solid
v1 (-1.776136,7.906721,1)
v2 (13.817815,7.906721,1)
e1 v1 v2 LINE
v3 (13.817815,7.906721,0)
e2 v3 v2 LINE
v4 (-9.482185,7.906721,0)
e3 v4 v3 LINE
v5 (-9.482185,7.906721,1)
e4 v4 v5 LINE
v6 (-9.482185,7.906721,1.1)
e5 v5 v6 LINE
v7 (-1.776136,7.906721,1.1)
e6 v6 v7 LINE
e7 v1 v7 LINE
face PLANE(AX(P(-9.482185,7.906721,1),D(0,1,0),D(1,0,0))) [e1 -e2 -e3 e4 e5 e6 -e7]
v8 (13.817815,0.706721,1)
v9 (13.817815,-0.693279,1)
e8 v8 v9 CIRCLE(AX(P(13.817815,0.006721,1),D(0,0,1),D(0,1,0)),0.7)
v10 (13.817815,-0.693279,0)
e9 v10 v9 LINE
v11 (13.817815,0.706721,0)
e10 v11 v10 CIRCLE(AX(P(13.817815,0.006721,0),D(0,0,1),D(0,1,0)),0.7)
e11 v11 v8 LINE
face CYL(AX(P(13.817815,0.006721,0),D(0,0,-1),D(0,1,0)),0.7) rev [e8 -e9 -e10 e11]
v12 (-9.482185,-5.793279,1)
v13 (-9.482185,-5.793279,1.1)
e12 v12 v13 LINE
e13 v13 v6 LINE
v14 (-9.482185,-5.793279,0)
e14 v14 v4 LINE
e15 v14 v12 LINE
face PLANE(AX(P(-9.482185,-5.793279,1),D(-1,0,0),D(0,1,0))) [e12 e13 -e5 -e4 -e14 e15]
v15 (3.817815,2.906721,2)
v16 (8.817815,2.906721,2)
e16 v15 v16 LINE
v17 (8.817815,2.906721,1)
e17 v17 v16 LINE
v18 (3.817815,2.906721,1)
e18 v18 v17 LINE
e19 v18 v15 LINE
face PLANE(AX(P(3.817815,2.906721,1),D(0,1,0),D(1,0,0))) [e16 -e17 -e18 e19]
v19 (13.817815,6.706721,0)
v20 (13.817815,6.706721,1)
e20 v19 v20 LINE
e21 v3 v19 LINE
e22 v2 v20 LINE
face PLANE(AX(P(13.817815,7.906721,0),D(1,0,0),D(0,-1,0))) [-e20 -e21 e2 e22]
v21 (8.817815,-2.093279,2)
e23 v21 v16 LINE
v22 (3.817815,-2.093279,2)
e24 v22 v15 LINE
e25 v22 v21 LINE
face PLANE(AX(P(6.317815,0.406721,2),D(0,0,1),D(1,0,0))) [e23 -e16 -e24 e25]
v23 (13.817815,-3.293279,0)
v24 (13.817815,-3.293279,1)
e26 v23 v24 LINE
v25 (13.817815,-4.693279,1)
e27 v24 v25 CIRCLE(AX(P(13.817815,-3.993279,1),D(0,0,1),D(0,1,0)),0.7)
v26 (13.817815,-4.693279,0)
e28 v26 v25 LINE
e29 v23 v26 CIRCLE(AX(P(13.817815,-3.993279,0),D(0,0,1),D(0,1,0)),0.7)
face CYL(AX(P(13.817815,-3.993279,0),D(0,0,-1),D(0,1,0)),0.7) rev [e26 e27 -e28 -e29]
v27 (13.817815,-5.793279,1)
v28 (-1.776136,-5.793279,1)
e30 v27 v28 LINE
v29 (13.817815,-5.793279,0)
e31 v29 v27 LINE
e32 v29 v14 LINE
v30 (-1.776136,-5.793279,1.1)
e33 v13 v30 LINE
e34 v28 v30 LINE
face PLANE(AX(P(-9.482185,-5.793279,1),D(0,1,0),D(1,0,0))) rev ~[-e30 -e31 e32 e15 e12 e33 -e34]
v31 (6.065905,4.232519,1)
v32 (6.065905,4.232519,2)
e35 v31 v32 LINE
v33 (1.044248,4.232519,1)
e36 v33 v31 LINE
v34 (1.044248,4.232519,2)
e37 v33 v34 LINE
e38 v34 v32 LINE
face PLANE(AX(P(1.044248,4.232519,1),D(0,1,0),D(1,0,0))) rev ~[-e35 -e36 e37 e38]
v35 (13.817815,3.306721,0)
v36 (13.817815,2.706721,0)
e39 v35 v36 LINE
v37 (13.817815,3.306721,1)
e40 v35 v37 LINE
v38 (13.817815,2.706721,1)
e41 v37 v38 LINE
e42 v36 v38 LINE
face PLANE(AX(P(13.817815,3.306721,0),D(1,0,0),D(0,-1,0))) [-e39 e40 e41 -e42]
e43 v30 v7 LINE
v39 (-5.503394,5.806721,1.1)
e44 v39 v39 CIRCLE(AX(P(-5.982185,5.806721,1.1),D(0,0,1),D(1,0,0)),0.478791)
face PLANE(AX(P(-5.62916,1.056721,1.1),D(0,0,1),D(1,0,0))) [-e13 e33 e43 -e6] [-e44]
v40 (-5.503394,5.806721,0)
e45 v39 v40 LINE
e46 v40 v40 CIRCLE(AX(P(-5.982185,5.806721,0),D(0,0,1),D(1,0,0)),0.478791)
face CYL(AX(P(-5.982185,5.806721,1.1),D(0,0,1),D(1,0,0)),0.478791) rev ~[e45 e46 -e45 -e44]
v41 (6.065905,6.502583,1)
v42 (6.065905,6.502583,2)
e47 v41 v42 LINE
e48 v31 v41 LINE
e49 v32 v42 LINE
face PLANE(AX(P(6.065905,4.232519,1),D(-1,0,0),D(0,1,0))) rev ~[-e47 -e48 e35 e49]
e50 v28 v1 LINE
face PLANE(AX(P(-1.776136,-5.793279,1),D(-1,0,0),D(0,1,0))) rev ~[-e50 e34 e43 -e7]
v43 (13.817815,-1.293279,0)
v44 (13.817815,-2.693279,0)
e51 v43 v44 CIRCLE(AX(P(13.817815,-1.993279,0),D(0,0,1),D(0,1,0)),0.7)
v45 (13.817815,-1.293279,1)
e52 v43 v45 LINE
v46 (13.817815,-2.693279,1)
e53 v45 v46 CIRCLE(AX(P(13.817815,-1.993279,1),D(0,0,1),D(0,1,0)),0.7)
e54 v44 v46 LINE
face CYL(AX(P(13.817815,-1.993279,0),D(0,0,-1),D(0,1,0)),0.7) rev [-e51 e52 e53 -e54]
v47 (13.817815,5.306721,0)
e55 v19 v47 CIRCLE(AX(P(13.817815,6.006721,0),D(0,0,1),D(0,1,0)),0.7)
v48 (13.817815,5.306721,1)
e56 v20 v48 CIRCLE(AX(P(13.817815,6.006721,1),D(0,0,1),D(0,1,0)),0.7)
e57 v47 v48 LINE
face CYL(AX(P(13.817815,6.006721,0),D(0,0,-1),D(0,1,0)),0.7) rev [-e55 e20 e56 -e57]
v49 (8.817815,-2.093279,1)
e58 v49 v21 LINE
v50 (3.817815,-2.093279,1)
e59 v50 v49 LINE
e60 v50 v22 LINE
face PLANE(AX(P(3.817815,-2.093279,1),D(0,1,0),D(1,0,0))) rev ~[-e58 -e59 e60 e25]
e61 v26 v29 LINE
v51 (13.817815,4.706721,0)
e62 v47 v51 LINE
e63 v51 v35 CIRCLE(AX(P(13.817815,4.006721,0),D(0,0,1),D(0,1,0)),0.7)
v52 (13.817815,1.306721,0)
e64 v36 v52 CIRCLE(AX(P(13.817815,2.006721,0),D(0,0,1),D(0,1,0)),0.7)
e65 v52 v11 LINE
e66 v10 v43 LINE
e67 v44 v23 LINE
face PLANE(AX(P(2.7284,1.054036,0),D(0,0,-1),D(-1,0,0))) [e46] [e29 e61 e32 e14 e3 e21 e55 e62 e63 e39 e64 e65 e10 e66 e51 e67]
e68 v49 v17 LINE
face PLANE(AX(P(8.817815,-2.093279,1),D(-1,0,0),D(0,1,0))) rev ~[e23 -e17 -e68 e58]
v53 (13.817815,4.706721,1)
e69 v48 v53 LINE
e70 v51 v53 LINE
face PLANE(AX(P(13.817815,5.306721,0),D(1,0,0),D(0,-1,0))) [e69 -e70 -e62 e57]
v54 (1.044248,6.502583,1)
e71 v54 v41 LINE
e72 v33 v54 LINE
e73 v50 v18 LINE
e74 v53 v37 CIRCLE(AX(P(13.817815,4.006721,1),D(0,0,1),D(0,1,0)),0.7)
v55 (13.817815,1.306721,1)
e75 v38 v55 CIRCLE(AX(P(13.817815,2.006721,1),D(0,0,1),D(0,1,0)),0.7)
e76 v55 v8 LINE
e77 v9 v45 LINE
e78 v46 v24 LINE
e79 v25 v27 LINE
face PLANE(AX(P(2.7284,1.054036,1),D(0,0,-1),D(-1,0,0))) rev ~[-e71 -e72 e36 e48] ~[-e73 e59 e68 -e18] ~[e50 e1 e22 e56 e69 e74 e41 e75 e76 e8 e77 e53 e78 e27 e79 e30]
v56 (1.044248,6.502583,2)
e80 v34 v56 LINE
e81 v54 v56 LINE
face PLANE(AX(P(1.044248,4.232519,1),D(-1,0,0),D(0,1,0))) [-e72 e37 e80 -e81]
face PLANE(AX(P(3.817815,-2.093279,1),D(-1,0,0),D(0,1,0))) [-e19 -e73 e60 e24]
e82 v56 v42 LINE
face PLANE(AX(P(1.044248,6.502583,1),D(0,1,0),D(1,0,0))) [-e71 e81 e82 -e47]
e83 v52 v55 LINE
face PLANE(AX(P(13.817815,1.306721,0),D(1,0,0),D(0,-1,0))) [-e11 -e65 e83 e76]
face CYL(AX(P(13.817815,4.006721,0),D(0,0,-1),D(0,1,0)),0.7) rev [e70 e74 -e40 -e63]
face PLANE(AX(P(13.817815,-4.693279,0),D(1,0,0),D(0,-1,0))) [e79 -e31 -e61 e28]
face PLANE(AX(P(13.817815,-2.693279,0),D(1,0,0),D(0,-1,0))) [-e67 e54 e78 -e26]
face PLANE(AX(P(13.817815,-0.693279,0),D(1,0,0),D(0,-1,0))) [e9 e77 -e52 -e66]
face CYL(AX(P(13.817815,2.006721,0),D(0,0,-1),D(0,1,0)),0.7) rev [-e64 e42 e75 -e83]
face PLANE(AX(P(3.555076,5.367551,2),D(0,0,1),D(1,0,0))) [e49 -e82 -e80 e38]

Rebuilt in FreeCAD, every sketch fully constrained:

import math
import FreeCAD as App
import Part
import Sketcher

V = App.Vector


def add_polygon(sketch, points):
    """Adds a closed chain of lines whose ends are joined by coincident constraints."""
    first, n = sketch.GeometryCount, len(points)
    for a, b in zip(points, points[1:] + points[:1]):
        sketch.addGeometry(Part.LineSegment(App.Vector(*a, 0), App.Vector(*b, 0)), False)
    for i in range(n):
        sketch.addConstraint(Sketcher.Constraint("Coincident", first + i, 2, first + (i + 1) % n, 1))

doc = App.newDocument("Part")
body = doc.addObject("PartDesign::Body", "Body")

sketch1 = body.newObject("Sketcher::SketchObject", "Sketch")
sketch1.AttachmentSupport = (doc.getObject("XY_Plane"), [""])
sketch1.MapMode = "FlatFace"
sketch1.addGeometry([
    Part.LineSegment(V(13.8, 4.7, 0), V(13.8, 5.3, 0)),
    Part.ArcOfCircle(Part.Circle(V(13.8, 6, 0), V(0, 0, 1), 0.7), math.radians(90), math.radians(270)),
    Part.LineSegment(V(13.8, 6.7, 0), V(13.8, 7.9, 0)),
    Part.LineSegment(V(13.8, 7.9, 0), V(-9.5, 7.9, 0)),
    Part.LineSegment(V(-9.5, 7.9, 0), V(-9.5, -5.8, 0)),
    Part.LineSegment(V(-9.5, -5.8, 0), V(13.8, -5.8, 0)),
    Part.LineSegment(V(13.8, -5.8, 0), V(13.8, -4.7, 0)),
    Part.ArcOfCircle(Part.Circle(V(13.8, -4, 0), V(0, 0, 1), 0.7), math.radians(90), math.radians(270)),
    Part.LineSegment(V(13.8, -3.3, 0), V(13.8, -2.7, 0)),
    Part.ArcOfCircle(Part.Circle(V(13.8, -2, 0), V(0, 0, 1), 0.7), math.radians(90), math.radians(270)),
    Part.LineSegment(V(13.8, -1.3, 0), V(13.8, -0.7, 0)),
    Part.ArcOfCircle(Part.Circle(V(13.8, 0, 0), V(0, 0, 1), 0.7), math.radians(90), math.radians(270)),
    Part.LineSegment(V(13.8, 0.7, 0), V(13.8, 1.3, 0)),
    Part.ArcOfCircle(Part.Circle(V(13.8, 2, 0), V(0, 0, 1), 0.7), math.radians(90), math.radians(270)),
    Part.LineSegment(V(13.8, 2.7, 0), V(13.8, 3.3, 0)),
    Part.ArcOfCircle(Part.Circle(V(13.8, 4, 0), V(0, 0, 1), 0.7), math.radians(90), math.radians(270)),
], False)
sketch1.addConstraint([
    Sketcher.Constraint("Coincident", 0, 2, 1, 2),
    Sketcher.Constraint("Coincident", 1, 1, 2, 1),
    Sketcher.Constraint("Coincident", 2, 2, 3, 1),
    Sketcher.Constraint("Coincident", 3, 2, 4, 1),
    Sketcher.Constraint("Coincident", 4, 2, 5, 1),
    Sketcher.Constraint("Coincident", 5, 2, 6, 1),
    Sketcher.Constraint("Coincident", 6, 2, 7, 2),
    Sketcher.Constraint("Coincident", 7, 1, 8, 1),
    Sketcher.Constraint("Coincident", 8, 2, 9, 2),
    Sketcher.Constraint("Coincident", 9, 1, 10, 1),
    Sketcher.Constraint("Coincident", 10, 2, 11, 2),
    Sketcher.Constraint("Coincident", 11, 1, 12, 1),
    Sketcher.Constraint("Coincident", 12, 2, 13, 2),
    Sketcher.Constraint("Coincident", 13, 1, 14, 1),
    Sketcher.Constraint("Coincident", 14, 2, 15, 2),
    Sketcher.Constraint("Coincident", 15, 1, 0, 1),
    Sketcher.Constraint("Vertical", 0),
    Sketcher.Constraint("Vertical", 2),
    Sketcher.Constraint("Horizontal", 3),
    Sketcher.Constraint("Vertical", 4),
    Sketcher.Constraint("Horizontal", 5),
    Sketcher.Constraint("Vertical", 6),
    Sketcher.Constraint("Vertical", 8),
    Sketcher.Constraint("Vertical", 10),
    Sketcher.Constraint("Vertical", 12),
    Sketcher.Constraint("Vertical", 14),
    Sketcher.Constraint("Equal", 1, 7),
    Sketcher.Constraint("Equal", 7, 9),
    Sketcher.Constraint("Equal", 9, 11),
    Sketcher.Constraint("Equal", 11, 13),
    Sketcher.Constraint("Equal", 13, 15),
    Sketcher.Constraint("Vertical", 1, 3, 7, 3),
    Sketcher.Constraint("Vertical", 7, 3, 9, 3),
    Sketcher.Constraint("Vertical", 9, 3, 11, 3),
    Sketcher.Constraint("Vertical", 11, 3, 13, 3),
    Sketcher.Constraint("Vertical", 13, 3, 15, 3),
    Sketcher.Constraint("Vertical", 15, 3, 0, 2),
    Sketcher.Constraint("Vertical", 0, 2, 1, 1),
    Sketcher.Constraint("Vertical", 2, 2, 5, 2),
    Sketcher.Constraint("Vertical", 6, 2, 7, 1),
    Sketcher.Constraint("Vertical", 8, 2, 9, 1),
    Sketcher.Constraint("Vertical", 10, 2, 11, 1),
    Sketcher.Constraint("Vertical", 12, 2, 13, 1),
    Sketcher.Constraint("Equal", 0, 8),
    Sketcher.Constraint("Equal", 8, 10),
    Sketcher.Constraint("Equal", 10, 12),
    Sketcher.Constraint("Equal", 12, 14),
    Sketcher.Constraint("Radius", 1, 0.7),
    Sketcher.Constraint("DistanceX", 3, 2, 3, 1, 23.3),
    Sketcher.Constraint("DistanceY", 0, 1, 0, 2, 0.6),
    Sketcher.Constraint("DistanceY", 2, 1, 2, 2, 1.2),
    Sketcher.Constraint("DistanceY", 4, 2, 4, 1, 13.7),
    Sketcher.Constraint("DistanceY", -1, 1, 1, 3, 6.006721),
    Sketcher.Constraint("DistanceX", -1, 1, 1, 3, 13.817815),
])
pad1 = body.newObject("PartDesign::Pad", "Pad")
pad1.Profile = sketch1
pad1.Length = 1

sketch2 = body.newObject("Sketcher::SketchObject", "Sketch001")
sketch2.AttachmentSupport = (doc.getObject("XY_Plane"), [""])
sketch2.MapMode = "FlatFace"
sketch2.AttachmentOffset = App.Placement(V(0, 0, 1), App.Rotation())
add_polygon(sketch2, [(-9, 8), (-9, -6), (-2, -6), (-2, 8)])
sketch2.addConstraint([
    Sketcher.Constraint("Vertical", 0),
    Sketcher.Constraint("Horizontal", 1),
    Sketcher.Constraint("Vertical", 2),
    Sketcher.Constraint("Horizontal", 3),
    Sketcher.Constraint("DistanceY", 0, 2, 0, 1, 13.7),
    Sketcher.Constraint("DistanceX", 1, 1, 1, 2, 7.70605),
    Sketcher.Constraint("DistanceY", 0, 2, -1, 1, 5.793279),
    Sketcher.Constraint("DistanceX", 0, 2, -1, 1, 9.482185),
])
pad2 = body.newObject("PartDesign::Pad", "Pad001")
pad2.Profile = sketch2
pad2.Length = 0.1

sketch3 = body.newObject("Sketcher::SketchObject", "Sketch002")
sketch3.AttachmentSupport = (doc.getObject("XY_Plane"), [""])
sketch3.MapMode = "FlatFace"
sketch3.AttachmentOffset = App.Placement(V(0, 0, 1.1), App.Rotation())
sketch3.addGeometry(Part.Circle(V(-5.98, 5.81, 0), V(0, 0, 1), 0.48), False)
sketch3.addConstraint([
    Sketcher.Constraint("Diameter", 0, 0.957583),
    Sketcher.Constraint("DistanceY", -1, 1, 0, 3, 5.806721),
    Sketcher.Constraint("DistanceX", 0, 3, -1, 1, 5.982185),
])
pocket1 = body.newObject("PartDesign::Pocket", "Pocket")
pocket1.Profile = sketch3
pocket1.Length = 2.1

sketch4 = body.newObject("Sketcher::SketchObject", "Sketch003")
sketch4.AttachmentSupport = (doc.getObject("XY_Plane"), [""])
sketch4.MapMode = "FlatFace"
sketch4.AttachmentOffset = App.Placement(V(0, 0, 1), App.Rotation())
add_polygon(sketch4, [(4, 3), (4, -2), (9, -2), (9, 3)])
sketch4.addConstraint([
    Sketcher.Constraint("Vertical", 0),
    Sketcher.Constraint("Horizontal", 1),
    Sketcher.Constraint("Vertical", 2),
    Sketcher.Constraint("Horizontal", 3),
    Sketcher.Constraint("Equal", 3, 0),
    Sketcher.Constraint("DistanceX", 1, 1, 1, 2, 5.0),
    Sketcher.Constraint("DistanceY", 0, 2, -1, 1, 2.093279),
    Sketcher.Constraint("DistanceX", -1, 1, 0, 2, 3.817815),
])
pad3 = body.newObject("PartDesign::Pad", "Pad002")
pad3.Profile = sketch4
pad3.Length = 1

sketch5 = body.newObject("Sketcher::SketchObject", "Sketch004")
sketch5.AttachmentSupport = (doc.getObject("XY_Plane"), [""])
sketch5.MapMode = "FlatFace"
sketch5.AttachmentOffset = App.Placement(V(0, 0, 1), App.Rotation())
add_polygon(sketch5, [(1, 6.5), (1, 4.2), (6.1, 4.2), (6.1, 6.5)])
sketch5.addConstraint([
    Sketcher.Constraint("Vertical", 0),
    Sketcher.Constraint("Horizontal", 1),
    Sketcher.Constraint("Vertical", 2),
    Sketcher.Constraint("Horizontal", 3),
    Sketcher.Constraint("DistanceX", 1, 1, 1, 2, 5.021658),
    Sketcher.Constraint("DistanceY", 0, 2, 0, 1, 2.270064),
    Sketcher.Constraint("DistanceY", -1, 1, 0, 2, 4.232519),
    Sketcher.Constraint("DistanceX", -1, 1, 0, 2, 1.044248),
])
pad4 = body.newObject("PartDesign::Pad", "Pad003")
pad4.Profile = sketch5
pad4.Length = 1

doc.recompute()
